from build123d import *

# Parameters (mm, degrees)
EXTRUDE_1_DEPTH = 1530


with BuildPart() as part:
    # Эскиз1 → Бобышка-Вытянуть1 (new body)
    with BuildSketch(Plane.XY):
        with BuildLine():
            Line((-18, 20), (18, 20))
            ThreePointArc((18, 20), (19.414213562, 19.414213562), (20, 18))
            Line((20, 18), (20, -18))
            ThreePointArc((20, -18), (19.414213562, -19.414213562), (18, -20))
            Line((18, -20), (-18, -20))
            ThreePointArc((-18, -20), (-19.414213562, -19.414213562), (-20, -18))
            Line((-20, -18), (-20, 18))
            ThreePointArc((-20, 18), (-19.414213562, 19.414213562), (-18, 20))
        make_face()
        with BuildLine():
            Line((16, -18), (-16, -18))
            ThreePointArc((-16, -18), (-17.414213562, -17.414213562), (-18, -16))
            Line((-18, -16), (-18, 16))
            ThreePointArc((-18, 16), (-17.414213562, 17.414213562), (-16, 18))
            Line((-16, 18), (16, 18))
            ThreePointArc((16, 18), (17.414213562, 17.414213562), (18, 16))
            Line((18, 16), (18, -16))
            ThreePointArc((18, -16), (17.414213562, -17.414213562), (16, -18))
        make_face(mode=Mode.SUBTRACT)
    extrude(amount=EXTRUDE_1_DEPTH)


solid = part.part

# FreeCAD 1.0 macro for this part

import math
import FreeCAD as App
import Part
import Sketcher

V = App.Vector

doc = App.newDocument("Part")
params = doc.addObject("Spreadsheet::Sheet", "Params")
for row, (alias, value) in enumerate([
    ("sketch1_radius", "2 mm"),
    ("sketch1_width", "36 mm"),
    ("pad1_length", "1530 mm"),
], start=1):
    params.set(f"A{row}", alias)
    params.set(f"B{row}", "=" + value)
    params.setAlias(f"B{row}", alias)

body = doc.addObject("PartDesign::Body", "Body")

# Sketch on XY plane
sketch1 = body.newObject("Sketcher::SketchObject", "Sketch")
sketch1.AttachmentSupport = (doc.getObject("XY_Plane"), [""])
sketch1.MapMode = "FlatFace"
sketch1.addGeometry([
    Part.LineSegment(V(18, 20, 0), V(-18, 20, 0)),  # 0
    Part.ArcOfCircle(Part.Circle(V(-18, 18, 0), V(0, 0, 1), 2), math.radians(90), math.radians(180)),  # 1
    Part.LineSegment(V(-20, 18, 0), V(-20, -18, 0)),  # 2
    Part.ArcOfCircle(Part.Circle(V(-18, -18, 0), V(0, 0, 1), 2), math.radians(-180), math.radians(-90)),  # 3
    Part.LineSegment(V(-18, -20, 0), V(18, -20, 0)),  # 4
    Part.ArcOfCircle(Part.Circle(V(18, -18, 0), V(0, 0, 1), 2), math.radians(-90), math.radians(0)),  # 5
    Part.LineSegment(V(20, -18, 0), V(20, 18, 0)),  # 6
    Part.ArcOfCircle(Part.Circle(V(18, 18, 0), V(0, 0, 1), 2), math.radians(0), math.radians(90)),  # 7
    Part.LineSegment(V(16, -18, 0), V(-16, -18, 0)),  # 8
    Part.ArcOfCircle(Part.Circle(V(-16, -16, 0), V(0, 0, 1), 2), math.radians(-180), math.radians(-90)),  # 9
    Part.LineSegment(V(-18, -16, 0), V(-18, 16, 0)),  # 10
    Part.ArcOfCircle(Part.Circle(V(-16, 16, 0), V(0, 0, 1), 2), math.radians(90), math.radians(180)),  # 11
    Part.LineSegment(V(-16, 18, 0), V(16, 18, 0)),  # 12
    Part.ArcOfCircle(Part.Circle(V(16, 16, 0), V(0, 0, 1), 2), math.radians(0), math.radians(90)),  # 13
    Part.LineSegment(V(18, 16, 0), V(18, -16, 0)),  # 14
    Part.ArcOfCircle(Part.Circle(V(16, -16, 0), V(0, 0, 1), 2), math.radians(-90), math.radians(0)),  # 15
], False)
sketch1.addConstraint([
    Sketcher.Constraint("Tangent", 0, 2, 1, 1),
    Sketcher.Constraint("Tangent", 1, 2, 2, 1),
    Sketcher.Constraint("Tangent", 2, 2, 3, 1),
    Sketcher.Constraint("Tangent", 3, 2, 4, 1),
    Sketcher.Constraint("Tangent", 4, 2, 5, 1),
    Sketcher.Constraint("Tangent", 5, 2, 6, 1),
    Sketcher.Constraint("Tangent", 6, 2, 7, 1),
    Sketcher.Constraint("Tangent", 7, 2, 0, 1),
    Sketcher.Constraint("Tangent", 8, 2, 9, 2),
    Sketcher.Constraint("Tangent", 9, 1, 10, 1),
    Sketcher.Constraint("Tangent", 10, 2, 11, 2),
    Sketcher.Constraint("Tangent", 11, 1, 12, 1),
    Sketcher.Constraint("Tangent", 12, 2, 13, 2),
    Sketcher.Constraint("Tangent", 13, 1, 14, 1),
    Sketcher.Constraint("Tangent", 14, 2, 15, 2),
    Sketcher.Constraint("Tangent", 15, 1, 8, 1),
    Sketcher.Constraint("Horizontal", 0),
    Sketcher.Constraint("Vertical", 2),
    Sketcher.Constraint("Horizontal", 4),
    Sketcher.Constraint("Vertical", 6),
    Sketcher.Constraint("Horizontal", 8),
    Sketcher.Constraint("Vertical", 10),
    Sketcher.Constraint("Horizontal", 12),
    Sketcher.Constraint("Vertical", 14),
    Sketcher.Constraint("Equal", 1, 3),
    Sketcher.Constraint("Equal", 3, 5),
    Sketcher.Constraint("Equal", 5, 7),
    Sketcher.Constraint("Equal", 7, 9),
    Sketcher.Constraint("Equal", 9, 11),
    Sketcher.Constraint("Equal", 11, 13),
    Sketcher.Constraint("Equal", 13, 15),
    Sketcher.Constraint("Symmetric", 1, 3, 5, 3, -1, 1),
    Sketcher.Constraint("Symmetric", 9, 3, 13, 3, -1, 1),
    Sketcher.Constraint("Horizontal", 5, 2, 8, 2),
    Sketcher.Constraint("Vertical", 3, 2, 9, 1),
    Sketcher.Constraint("Equal", 4, 2),
    Sketcher.Constraint("Radius", 1, 2.0),
    Sketcher.Constraint("DistanceX", 0, 2, 0, 1, 36.0),
])
sketch1.setExpression("Constraints[36]", "Params.sketch1_radius")
sketch1.setExpression("Constraints[37]", "Params.sketch1_width")
pad1 = body.newObject("PartDesign::Pad", "Pad")
pad1.Profile = sketch1
pad1.setExpression("Length", "Params.pad1_length")

doc.recompute()
